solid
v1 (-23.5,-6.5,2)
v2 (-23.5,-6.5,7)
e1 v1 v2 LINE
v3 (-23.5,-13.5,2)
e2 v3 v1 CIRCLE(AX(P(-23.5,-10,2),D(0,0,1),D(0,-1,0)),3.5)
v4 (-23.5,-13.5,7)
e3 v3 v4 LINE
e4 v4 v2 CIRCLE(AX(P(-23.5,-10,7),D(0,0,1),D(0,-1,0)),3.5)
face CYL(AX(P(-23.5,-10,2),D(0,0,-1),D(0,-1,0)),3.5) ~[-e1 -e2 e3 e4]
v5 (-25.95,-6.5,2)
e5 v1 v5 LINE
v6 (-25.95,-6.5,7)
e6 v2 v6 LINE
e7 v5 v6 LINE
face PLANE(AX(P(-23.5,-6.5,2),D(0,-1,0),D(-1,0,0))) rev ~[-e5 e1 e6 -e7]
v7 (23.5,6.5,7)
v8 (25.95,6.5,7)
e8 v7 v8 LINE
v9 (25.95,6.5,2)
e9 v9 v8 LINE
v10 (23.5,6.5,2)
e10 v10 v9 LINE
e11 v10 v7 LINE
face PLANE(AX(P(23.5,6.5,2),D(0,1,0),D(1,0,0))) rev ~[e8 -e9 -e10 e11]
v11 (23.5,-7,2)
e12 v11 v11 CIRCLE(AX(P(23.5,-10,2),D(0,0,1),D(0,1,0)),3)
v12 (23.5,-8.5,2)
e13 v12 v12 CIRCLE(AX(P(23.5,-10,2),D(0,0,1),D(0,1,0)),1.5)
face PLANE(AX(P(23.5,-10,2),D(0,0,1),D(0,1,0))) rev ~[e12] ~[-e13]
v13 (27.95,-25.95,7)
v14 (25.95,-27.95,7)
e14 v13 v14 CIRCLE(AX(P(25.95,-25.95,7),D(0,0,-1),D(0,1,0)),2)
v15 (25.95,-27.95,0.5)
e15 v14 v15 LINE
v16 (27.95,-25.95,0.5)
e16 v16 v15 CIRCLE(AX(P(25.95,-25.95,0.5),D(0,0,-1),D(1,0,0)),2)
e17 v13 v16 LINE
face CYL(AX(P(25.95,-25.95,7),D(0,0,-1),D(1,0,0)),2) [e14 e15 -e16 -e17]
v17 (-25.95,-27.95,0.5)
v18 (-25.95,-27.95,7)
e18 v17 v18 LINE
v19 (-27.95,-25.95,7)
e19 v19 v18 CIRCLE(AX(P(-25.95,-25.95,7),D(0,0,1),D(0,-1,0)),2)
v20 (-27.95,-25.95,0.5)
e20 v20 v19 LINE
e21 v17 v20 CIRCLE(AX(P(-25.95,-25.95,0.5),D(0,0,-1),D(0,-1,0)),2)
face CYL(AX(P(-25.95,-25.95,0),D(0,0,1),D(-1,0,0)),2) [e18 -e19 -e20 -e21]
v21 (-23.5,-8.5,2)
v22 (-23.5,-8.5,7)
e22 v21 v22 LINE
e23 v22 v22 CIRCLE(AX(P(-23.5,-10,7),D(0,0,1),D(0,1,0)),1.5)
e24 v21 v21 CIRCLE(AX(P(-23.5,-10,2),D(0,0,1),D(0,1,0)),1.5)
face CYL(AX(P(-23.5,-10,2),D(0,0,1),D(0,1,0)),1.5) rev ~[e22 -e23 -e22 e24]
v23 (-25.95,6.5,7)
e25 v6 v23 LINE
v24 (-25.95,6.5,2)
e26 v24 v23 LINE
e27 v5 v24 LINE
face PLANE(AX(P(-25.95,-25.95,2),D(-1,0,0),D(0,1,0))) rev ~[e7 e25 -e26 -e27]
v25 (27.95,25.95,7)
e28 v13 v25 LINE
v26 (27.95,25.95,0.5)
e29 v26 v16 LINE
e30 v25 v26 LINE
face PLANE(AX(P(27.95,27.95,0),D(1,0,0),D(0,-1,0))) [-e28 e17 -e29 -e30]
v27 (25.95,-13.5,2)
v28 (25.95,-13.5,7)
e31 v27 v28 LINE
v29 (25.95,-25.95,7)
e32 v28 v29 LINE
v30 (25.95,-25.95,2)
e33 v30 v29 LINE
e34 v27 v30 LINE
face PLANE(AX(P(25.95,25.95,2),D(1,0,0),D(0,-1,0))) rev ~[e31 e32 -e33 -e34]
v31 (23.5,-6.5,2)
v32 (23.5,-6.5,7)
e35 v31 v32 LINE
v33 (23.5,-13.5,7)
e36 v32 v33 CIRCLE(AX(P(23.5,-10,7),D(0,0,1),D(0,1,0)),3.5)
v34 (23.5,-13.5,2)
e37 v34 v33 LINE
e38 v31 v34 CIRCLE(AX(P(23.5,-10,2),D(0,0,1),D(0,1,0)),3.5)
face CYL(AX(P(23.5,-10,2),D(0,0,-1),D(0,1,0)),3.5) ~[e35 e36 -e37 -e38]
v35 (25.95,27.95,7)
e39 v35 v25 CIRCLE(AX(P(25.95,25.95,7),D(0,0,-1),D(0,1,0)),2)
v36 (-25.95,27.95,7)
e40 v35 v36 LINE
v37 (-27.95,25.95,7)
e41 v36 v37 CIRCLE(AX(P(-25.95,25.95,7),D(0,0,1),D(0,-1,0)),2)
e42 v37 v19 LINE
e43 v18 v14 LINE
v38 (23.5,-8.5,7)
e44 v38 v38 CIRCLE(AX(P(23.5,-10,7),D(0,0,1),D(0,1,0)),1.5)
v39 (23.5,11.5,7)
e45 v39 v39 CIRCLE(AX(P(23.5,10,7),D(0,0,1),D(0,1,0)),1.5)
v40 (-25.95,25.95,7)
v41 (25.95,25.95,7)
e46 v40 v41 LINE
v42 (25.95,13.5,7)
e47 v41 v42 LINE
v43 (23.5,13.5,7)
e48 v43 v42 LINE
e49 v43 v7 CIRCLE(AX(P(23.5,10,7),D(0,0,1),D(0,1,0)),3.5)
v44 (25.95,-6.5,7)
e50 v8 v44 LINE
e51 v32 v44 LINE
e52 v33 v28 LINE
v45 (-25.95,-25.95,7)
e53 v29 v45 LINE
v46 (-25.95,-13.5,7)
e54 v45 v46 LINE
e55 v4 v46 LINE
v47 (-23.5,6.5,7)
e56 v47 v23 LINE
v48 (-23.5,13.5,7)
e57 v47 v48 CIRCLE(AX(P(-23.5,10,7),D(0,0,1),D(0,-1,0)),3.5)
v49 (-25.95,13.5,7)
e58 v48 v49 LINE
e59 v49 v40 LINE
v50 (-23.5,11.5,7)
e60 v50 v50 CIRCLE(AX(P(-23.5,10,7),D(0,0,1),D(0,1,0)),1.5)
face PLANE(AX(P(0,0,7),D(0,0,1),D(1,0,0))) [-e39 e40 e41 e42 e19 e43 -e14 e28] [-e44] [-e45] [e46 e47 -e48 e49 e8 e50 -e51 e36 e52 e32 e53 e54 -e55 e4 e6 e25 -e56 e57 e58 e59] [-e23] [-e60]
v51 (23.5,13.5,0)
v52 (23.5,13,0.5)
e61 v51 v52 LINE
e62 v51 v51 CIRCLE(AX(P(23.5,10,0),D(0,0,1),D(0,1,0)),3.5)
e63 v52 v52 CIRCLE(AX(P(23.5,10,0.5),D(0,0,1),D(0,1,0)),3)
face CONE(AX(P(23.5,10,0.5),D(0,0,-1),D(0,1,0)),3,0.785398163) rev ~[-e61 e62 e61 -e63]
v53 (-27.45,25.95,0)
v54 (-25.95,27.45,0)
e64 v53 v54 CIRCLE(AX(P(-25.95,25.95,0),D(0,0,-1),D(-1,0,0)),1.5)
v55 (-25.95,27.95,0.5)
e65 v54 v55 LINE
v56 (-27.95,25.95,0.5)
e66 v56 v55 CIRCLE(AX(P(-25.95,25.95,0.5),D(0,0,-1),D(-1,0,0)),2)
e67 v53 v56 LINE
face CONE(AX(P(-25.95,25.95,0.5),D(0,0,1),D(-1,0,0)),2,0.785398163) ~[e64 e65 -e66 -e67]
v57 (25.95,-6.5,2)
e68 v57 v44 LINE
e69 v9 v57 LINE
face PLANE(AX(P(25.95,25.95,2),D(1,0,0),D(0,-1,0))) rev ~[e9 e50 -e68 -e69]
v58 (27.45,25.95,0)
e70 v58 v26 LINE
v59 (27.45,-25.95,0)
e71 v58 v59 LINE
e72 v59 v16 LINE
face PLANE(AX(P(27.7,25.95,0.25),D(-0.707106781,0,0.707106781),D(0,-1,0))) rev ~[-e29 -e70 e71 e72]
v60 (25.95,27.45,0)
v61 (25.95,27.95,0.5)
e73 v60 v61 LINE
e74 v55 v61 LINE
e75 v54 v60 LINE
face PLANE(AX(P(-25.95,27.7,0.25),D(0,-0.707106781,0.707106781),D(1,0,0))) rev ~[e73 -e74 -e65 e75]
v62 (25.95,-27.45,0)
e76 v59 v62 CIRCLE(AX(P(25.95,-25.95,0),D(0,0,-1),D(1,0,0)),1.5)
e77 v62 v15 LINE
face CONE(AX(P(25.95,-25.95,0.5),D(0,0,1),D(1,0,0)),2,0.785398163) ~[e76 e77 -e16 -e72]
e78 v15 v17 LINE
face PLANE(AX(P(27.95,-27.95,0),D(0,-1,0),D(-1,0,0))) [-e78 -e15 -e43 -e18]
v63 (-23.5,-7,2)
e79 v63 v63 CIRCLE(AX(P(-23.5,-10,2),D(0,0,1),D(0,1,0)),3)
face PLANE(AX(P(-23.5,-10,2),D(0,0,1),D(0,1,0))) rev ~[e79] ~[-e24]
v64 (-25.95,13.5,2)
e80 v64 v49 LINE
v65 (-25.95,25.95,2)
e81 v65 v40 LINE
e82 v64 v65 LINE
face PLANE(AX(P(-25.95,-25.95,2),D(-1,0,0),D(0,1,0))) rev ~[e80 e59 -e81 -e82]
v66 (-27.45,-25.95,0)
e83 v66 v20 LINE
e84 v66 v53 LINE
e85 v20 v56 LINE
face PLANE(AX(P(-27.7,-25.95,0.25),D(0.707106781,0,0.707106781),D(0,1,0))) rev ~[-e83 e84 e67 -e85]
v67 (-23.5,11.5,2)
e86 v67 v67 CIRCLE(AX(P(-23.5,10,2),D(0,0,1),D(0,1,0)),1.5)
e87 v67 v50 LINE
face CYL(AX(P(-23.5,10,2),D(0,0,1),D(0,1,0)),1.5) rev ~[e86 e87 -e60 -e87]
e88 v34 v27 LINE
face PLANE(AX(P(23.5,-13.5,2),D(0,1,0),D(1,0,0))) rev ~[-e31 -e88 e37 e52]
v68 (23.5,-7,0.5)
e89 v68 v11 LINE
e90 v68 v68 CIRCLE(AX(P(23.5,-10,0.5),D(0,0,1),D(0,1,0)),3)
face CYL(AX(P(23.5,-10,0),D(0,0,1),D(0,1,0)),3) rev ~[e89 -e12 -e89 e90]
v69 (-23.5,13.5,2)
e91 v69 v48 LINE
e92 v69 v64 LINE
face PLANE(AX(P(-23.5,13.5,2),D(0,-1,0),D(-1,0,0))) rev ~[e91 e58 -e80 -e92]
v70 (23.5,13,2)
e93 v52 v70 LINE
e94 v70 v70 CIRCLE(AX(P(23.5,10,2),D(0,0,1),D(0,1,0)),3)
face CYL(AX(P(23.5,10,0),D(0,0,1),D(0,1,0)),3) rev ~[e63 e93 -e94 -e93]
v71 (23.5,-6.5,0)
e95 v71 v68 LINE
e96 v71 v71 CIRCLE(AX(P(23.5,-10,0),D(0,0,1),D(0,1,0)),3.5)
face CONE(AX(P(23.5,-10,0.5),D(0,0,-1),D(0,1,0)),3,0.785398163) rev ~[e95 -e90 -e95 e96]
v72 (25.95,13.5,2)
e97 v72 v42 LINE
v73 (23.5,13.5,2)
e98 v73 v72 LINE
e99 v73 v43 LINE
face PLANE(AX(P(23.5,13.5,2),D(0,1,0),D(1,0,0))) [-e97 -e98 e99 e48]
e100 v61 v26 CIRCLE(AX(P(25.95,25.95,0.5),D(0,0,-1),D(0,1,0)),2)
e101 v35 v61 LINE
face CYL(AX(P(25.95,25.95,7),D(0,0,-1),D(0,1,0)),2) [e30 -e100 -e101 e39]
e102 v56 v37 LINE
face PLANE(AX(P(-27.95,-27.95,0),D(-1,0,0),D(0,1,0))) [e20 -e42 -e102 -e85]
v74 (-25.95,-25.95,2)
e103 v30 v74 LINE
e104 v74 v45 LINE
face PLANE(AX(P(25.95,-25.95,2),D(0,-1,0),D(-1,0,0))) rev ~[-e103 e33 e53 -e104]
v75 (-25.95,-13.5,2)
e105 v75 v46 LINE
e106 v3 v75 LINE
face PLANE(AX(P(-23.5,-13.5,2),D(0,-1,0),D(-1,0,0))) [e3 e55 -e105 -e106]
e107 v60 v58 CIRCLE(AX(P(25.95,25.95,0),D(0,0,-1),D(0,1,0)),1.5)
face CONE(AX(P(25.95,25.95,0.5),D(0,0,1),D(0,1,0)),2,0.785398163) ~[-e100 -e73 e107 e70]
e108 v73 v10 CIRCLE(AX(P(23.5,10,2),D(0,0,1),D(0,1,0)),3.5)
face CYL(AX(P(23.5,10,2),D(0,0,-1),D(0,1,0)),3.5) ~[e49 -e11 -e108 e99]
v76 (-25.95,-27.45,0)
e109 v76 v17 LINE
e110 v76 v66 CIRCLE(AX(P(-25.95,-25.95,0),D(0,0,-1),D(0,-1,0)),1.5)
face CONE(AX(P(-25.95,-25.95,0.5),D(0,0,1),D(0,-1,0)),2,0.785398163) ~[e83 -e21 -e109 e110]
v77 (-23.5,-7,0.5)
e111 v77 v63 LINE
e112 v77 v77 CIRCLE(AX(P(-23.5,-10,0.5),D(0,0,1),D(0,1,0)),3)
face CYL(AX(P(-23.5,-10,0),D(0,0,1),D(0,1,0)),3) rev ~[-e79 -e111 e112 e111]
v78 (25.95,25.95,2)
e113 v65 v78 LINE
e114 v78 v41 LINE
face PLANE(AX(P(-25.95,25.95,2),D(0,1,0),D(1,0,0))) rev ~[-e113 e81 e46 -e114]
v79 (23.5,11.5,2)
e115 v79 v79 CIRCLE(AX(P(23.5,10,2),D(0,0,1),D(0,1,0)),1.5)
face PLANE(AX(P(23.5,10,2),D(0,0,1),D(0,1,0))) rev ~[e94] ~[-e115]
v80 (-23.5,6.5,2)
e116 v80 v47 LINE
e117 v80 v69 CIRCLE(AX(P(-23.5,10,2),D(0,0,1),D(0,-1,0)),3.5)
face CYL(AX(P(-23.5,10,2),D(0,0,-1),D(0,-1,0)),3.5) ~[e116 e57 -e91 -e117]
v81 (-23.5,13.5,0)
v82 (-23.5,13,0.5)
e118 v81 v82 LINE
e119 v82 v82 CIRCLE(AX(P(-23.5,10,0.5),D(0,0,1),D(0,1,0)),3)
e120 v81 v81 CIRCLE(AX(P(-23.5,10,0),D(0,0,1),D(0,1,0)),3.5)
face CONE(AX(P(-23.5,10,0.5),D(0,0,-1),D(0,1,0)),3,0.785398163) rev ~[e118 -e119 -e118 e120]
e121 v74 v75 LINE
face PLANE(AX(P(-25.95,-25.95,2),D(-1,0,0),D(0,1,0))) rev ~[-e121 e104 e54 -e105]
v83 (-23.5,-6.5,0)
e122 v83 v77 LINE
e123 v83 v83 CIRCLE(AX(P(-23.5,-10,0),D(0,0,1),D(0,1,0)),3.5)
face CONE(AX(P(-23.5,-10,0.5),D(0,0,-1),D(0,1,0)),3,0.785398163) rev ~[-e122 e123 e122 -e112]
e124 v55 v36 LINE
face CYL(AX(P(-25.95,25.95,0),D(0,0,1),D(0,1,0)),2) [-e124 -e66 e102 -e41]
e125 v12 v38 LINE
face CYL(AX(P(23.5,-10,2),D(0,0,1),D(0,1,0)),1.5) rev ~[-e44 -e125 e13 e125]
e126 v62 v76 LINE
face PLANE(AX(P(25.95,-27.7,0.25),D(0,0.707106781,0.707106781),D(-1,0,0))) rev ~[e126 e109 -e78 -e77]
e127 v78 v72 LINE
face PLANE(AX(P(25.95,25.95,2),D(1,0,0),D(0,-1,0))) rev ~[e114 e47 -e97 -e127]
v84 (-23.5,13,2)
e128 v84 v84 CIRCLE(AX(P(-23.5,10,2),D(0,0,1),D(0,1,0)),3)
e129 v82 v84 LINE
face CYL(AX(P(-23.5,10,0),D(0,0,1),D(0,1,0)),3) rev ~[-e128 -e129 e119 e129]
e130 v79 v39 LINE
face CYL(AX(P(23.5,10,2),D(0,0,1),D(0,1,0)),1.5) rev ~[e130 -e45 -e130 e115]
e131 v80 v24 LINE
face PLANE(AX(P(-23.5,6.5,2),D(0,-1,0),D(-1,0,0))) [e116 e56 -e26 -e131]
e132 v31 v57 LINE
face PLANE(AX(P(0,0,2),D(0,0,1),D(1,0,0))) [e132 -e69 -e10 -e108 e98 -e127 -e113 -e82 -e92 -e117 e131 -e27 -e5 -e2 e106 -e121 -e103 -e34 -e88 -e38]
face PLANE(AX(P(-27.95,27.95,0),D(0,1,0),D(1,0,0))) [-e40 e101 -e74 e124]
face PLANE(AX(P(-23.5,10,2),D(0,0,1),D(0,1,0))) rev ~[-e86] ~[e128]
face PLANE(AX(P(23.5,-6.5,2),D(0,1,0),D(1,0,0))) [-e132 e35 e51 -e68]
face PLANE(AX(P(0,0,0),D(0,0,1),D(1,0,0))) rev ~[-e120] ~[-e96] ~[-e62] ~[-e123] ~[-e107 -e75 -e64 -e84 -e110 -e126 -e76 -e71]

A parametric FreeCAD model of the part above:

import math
import FreeCAD as App
import Part
import Sketcher
from FreeCAD import Vector
Q = App.Units.Quantity


def edges_at(feature, points):
    """Names of the edges that pass closest to the given points."""
    edges = feature.Shape.Edges
    near = lambda p: min(range(len(edges)), key=lambda i: edges[i].distToShape(Part.Vertex(*p))[0])
    return sorted({f"Edge{near(p) + 1}" for p in points})

doc = App.newDocument("Part")
body = doc.addObject("PartDesign::Body", "Body")

# Sketch on XY plane
sketch1 = body.newObject("Sketcher::SketchObject", "Sketch")
sketch1.AttachmentSupport = (doc.getObject("XY_Plane"), [""])
sketch1.MapMode = "FlatFace"
sketch1.addGeometry(Part.LineSegment(Vector(28, 28, 0), Vector(-28, 28, 0)), False)
sketch1.addGeometry(Part.LineSegment(Vector(-28, 28, 0), Vector(-28, -28, 0)), False)
sketch1.addGeometry(Part.LineSegment(Vector(-28, -28, 0), Vector(28, -28, 0)), False)
sketch1.addGeometry(Part.LineSegment(Vector(28, -28, 0), Vector(28, 28, 0)), False)
sketch1.addConstraint(Sketcher.Constraint("Coincident", 0, 2, 1, 1))
sketch1.addConstraint(Sketcher.Constraint("Coincident", 1, 2, 2, 1))
sketch1.addConstraint(Sketcher.Constraint("Coincident", 2, 2, 3, 1))
sketch1.addConstraint(Sketcher.Constraint("Coincident", 3, 2, 0, 1))
sketch1.addConstraint(Sketcher.Constraint("Horizontal", 0))
sketch1.addConstraint(Sketcher.Constraint("Vertical", 1))
sketch1.addConstraint(Sketcher.Constraint("Horizontal", 2))
sketch1.addConstraint(Sketcher.Constraint("Vertical", 3))
sketch1.addConstraint(Sketcher.Constraint("Symmetric", 0, 2, 2, 2, -1, 1))
sketch1.addConstraint(Sketcher.Constraint("Equal", 2, 1))
sketch1.addConstraint(Sketcher.Constraint("DistanceX", 0, 2, 0, 1, Q("55.9 mm")))
pad1 = body.newObject("PartDesign::Pad", "Pad")
pad1.Profile = sketch1
pad1.Length = 2

# Sketch on XY plane
sketch2 = body.newObject("Sketcher::SketchObject", "Sketch001")
sketch2.AttachmentSupport = (doc.getObject("XY_Plane"), [""])
sketch2.MapMode = "FlatFace"
sketch2.AttachmentOffset = App.Placement(Vector(0, 0, 2), App.Rotation())
sketch2.addGeometry(Part.LineSegment(Vector(-28, 28, 0), Vector(-28, -28, 0)), False)
sketch2.addGeometry(Part.LineSegment(Vector(-28, -28, 0), Vector(28, -28, 0)), False)
sketch2.addGeometry(Part.LineSegment(Vector(28, -28, 0), Vector(28, 28, 0)), False)
sketch2.addGeometry(Part.LineSegment(Vector(28, 28, 0), Vector(-28, 28, 0)), False)
sketch2.addGeometry(Part.LineSegment(Vector(-26, -26, 0), Vector(-26, 26, 0)), False)
sketch2.addGeometry(Part.LineSegment(Vector(-26, 26, 0), Vector(26, 26, 0)), False)
sketch2.addGeometry(Part.LineSegment(Vector(26, 26, 0), Vector(26, -26, 0)), False)
sketch2.addGeometry(Part.LineSegment(Vector(26, -26, 0), Vector(-26, -26, 0)), False)
sketch2.addConstraint(Sketcher.Constraint("Coincident", 0, 2, 1, 1))
sketch2.addConstraint(Sketcher.Constraint("Coincident", 1, 2, 2, 1))
sketch2.addConstraint(Sketcher.Constraint("Coincident", 2, 2, 3, 1))
sketch2.addConstraint(Sketcher.Constraint("Coincident", 3, 2, 0, 1))
sketch2.addConstraint(Sketcher.Constraint("Coincident", 4, 2, 5, 1))
sketch2.addConstraint(Sketcher.Constraint("Coincident", 5, 2, 6, 1))
sketch2.addConstraint(Sketcher.Constraint("Coincident", 6, 2, 7, 1))
sketch2.addConstraint(Sketcher.Constraint("Coincident", 7, 2, 4, 1))
sketch2.addConstraint(Sketcher.Constraint("Vertical", 0))
sketch2.addConstraint(Sketcher.Constraint("Horizontal", 1))
sketch2.addConstraint(Sketcher.Constraint("Vertical", 2))
sketch2.addConstraint(Sketcher.Constraint("Horizontal", 3))
sketch2.addConstraint(Sketcher.Constraint("Vertical", 4))
sketch2.addConstraint(Sketcher.Constraint("Horizontal", 5))
sketch2.addConstraint(Sketcher.Constraint("Vertical", 6))
sketch2.addConstraint(Sketcher.Constraint("Horizontal", 7))
sketch2.addConstraint(Sketcher.Constraint("Symmetric", 0, 2, 2, 2, -1, 1))
sketch2.addConstraint(Sketcher.Constraint("Symmetric", 4, 2, 6, 2, -1, 1))
sketch2.addConstraint(Sketcher.Constraint("Equal", 3, 0))
sketch2.addConstraint(Sketcher.Constraint("Equal", 7, 4))
sketch2.addConstraint(Sketcher.Constraint("DistanceX", 3, 2, 4, 2, Q("2 mm")))
sketch2.addConstraint(Sketcher.Constraint("DistanceX", 1, 1, 1, 2, Q("55.9 mm")))
pad2 = body.newObject("PartDesign::Pad", "Pad001")
pad2.Profile = sketch2
pad2.Length = 5
doc.recompute()

fillet = body.newObject("PartDesign::Fillet", "Fillet")
fillet.Base = (pad2, edges_at(pad2, [
    (-27.95, -27.95, 3.5),
    (27.95, -27.95, 3.5),
    (27.95, 27.95, 3.5),
    (-27.95, 27.95, 3.5),
]))
fillet.Radius = 2

# Sketch on XY plane
sketch3 = body.newObject("Sketcher::SketchObject", "Sketch002")
sketch3.AttachmentSupport = (doc.getObject("XY_Plane"), [""])
sketch3.MapMode = "FlatFace"
sketch3.AttachmentOffset = App.Placement(Vector(0, 0, 2), App.Rotation())
sketch3.addGeometry(Part.LineSegment(Vector(-25.9, -13.5, 0), Vector(-23.5, -13.5, 0)), False)
sketch3.addGeometry(Part.ArcOfCircle(Part.Circle(Vector(-23.5, -10, 0), Vector(0, 0, 1), 3.5), math.radians(-90), math.radians(90)), False)
sketch3.addGeometry(Part.LineSegment(Vector(-23.5, -6.5, 0), Vector(-25.9, -6.5, 0)), False)
sketch3.addGeometry(Part.LineSegment(Vector(-25.9, -6.5, 0), Vector(-25.9, -13.5, 0)), False)
sketch3.addGeometry(Part.LineSegment(Vector(-25.9, 13.5, 0), Vector(-25.9, 6.5, 0)), False)
sketch3.addGeometry(Part.LineSegment(Vector(-25.9, 6.5, 0), Vector(-23.5, 6.5, 0)), False)
sketch3.addGeometry(Part.ArcOfCircle(Part.Circle(Vector(-23.5, 10, 0), Vector(0, 0, 1), 3.5), math.radians(-90), math.radians(90)), False)
sketch3.addGeometry(Part.LineSegment(Vector(-23.5, 13.5, 0), Vector(-25.9, 13.5, 0)), False)
sketch3.addGeometry(Part.LineSegment(Vector(23.5, -13.5, 0), Vector(25.9, -13.5, 0)), False)
sketch3.addGeometry(Part.LineSegment(Vector(25.9, -13.5, 0), Vector(25.9, -6.5, 0)), False)
sketch3.addGeometry(Part.LineSegment(Vector(25.9, -6.5, 0), Vector(23.5, -6.5, 0)), False)
sketch3.addGeometry(Part.ArcOfCircle(Part.Circle(Vector(23.5, -10, 0), Vector(0, 0, 1), 3.5), math.radians(90), math.radians(270)), False)
sketch3.addGeometry(Part.LineSegment(Vector(23.5, 6.5, 0), Vector(25.9, 6.5, 0)), False)
sketch3.addGeometry(Part.LineSegment(Vector(25.9, 6.5, 0), Vector(25.9, 13.5, 0)), False)
sketch3.addGeometry(Part.LineSegment(Vector(25.9, 13.5, 0), Vector(23.5, 13.5, 0)), False)
sketch3.addGeometry(Part.ArcOfCircle(Part.Circle(Vector(23.5, 10, 0), Vector(0, 0, 1), 3.5), math.radians(90), math.radians(270)), False)
sketch3.addConstraint(Sketcher.Constraint("Tangent", 0, 2, 1, 1))
sketch3.addConstraint(Sketcher.Constraint("Tangent", 1, 2, 2, 1))
sketch3.addConstraint(Sketcher.Constraint("Coincident", 2, 2, 3, 1))
sketch3.addConstraint(Sketcher.Constraint("Coincident", 3, 2, 0, 1))
sketch3.addConstraint(Sketcher.Constraint("Coincident", 4, 2, 5, 1))
sketch3.addConstraint(Sketcher.Constraint("Tangent", 5, 2, 6, 1))
sketch3.addConstraint(Sketcher.Constraint("Tangent", 6, 2, 7, 1))
sketch3.addConstraint(Sketcher.Constraint("Coincident", 7, 2, 4, 1))
sketch3.addConstraint(Sketcher.Constraint("Coincident", 8, 2, 9, 1))
sketch3.addConstraint(Sketcher.Constraint("Coincident", 9, 2, 10, 1))
sketch3.addConstraint(Sketcher.Constraint("Tangent", 10, 2, 11, 1))
sketch3.addConstraint(Sketcher.Constraint("Tangent", 11, 2, 8, 1))
sketch3.addConstraint(Sketcher.Constraint("Coincident", 12, 2, 13, 1))
sketch3.addConstraint(Sketcher.Constraint("Coincident", 13, 2, 14, 1))
sketch3.addConstraint(Sketcher.Constraint("Tangent", 14, 2, 15, 1))
sketch3.addConstraint(Sketcher.Constraint("Tangent", 15, 2, 12, 1))
sketch3.addConstraint(Sketcher.Constraint("Horizontal", 0))
sketch3.addConstraint(Sketcher.Constraint("Horizontal", 2))
sketch3.addConstraint(Sketcher.Constraint("Vertical", 3))
sketch3.addConstraint(Sketcher.Constraint("Vertical", 4))
sketch3.addConstraint(Sketcher.Constraint("Horizontal", 5))
sketch3.addConstraint(Sketcher.Constraint("Horizontal", 7))
sketch3.addConstraint(Sketcher.Constraint("Horizontal", 8))
sketch3.addConstraint(Sketcher.Constraint("Vertical", 9))
sketch3.addConstraint(Sketcher.Constraint("Horizontal", 10))
sketch3.addConstraint(Sketcher.Constraint("Horizontal", 12))
sketch3.addConstraint(Sketcher.Constraint("Vertical", 13))
sketch3.addConstraint(Sketcher.Constraint("Horizontal", 14))
sketch3.addConstraint(Sketcher.Constraint("Equal", 1, 6))
sketch3.addConstraint(Sketcher.Constraint("Equal", 6, 11))
sketch3.addConstraint(Sketcher.Constraint("Equal", 11, 15))
sketch3.addConstraint(Sketcher.Constraint("Symmetric", 6, 3, 11, 3, -1, 1))
sketch3.addConstraint(Sketcher.Constraint("Symmetric", 1, 3, 15, 3, -1, 1))
sketch3.addConstraint(Sketcher.Constraint("Symmetric", 1, 3, 11, 3, -2))
sketch3.addConstraint(Sketcher.Constraint("Vertical", 3, 2, 4, 2))
sketch3.addConstraint(Sketcher.Constraint("Vertical", 9, 2, 12, 2))
sketch3.addConstraint(Sketcher.Constraint("Equal", 7, 8))
sketch3.addConstraint(Sketcher.Constraint("Radius", 1, Q("3.5 mm")))
sketch3.addConstraint(Sketcher.Constraint("DistanceY", 1, 3, 6, 3, Q("20 mm")))
sketch3.addConstraint(Sketcher.Constraint("DistanceX", 1, 3, 11, 3, Q("47 mm")))
sketch3.addConstraint(Sketcher.Constraint("DistanceX", 0, 1, 0, 2, Q("2.45 mm")))
pad3 = body.newObject("PartDesign::Pad", "Pad002")
pad3.Profile = sketch3
pad3.Length = 5

# Sketch on XY plane
sketch4 = body.newObject("Sketcher::SketchObject", "Sketch003")
sketch4.AttachmentSupport = (doc.getObject("XY_Plane"), [""])
sketch4.MapMode = "FlatFace"
sketch4.addGeometry(Part.Circle(Vector(23.5, -10, 0), Vector(0, 0, 1), 1.5), False)
sketch4.addGeometry(Part.Circle(Vector(23.5, 10, 0), Vector(0, 0, 1), 1.5), False)
sketch4.addGeometry(Part.Circle(Vector(-23.5, 10, 0), Vector(0, 0, 1), 1.5), False)
sketch4.addGeometry(Part.Circle(Vector(-23.5, -10, 0), Vector(0, 0, 1), 1.5), False)
sketch4.addConstraint(Sketcher.Constraint("Equal", 0, 1))
sketch4.addConstraint(Sketcher.Constraint("Equal", 1, 2))
sketch4.addConstraint(Sketcher.Constraint("Equal", 2, 3))
sketch4.addConstraint(Sketcher.Constraint("Symmetric", 0, 3, 2, 3, -1, 1))
sketch4.addConstraint(Sketcher.Constraint("Symmetric", 1, 3, 3, 3, -1, 1))
sketch4.addConstraint(Sketcher.Constraint("Symmetric", 1, 3, 2, 3, -2))
sketch4.addConstraint(Sketcher.Constraint("Diameter", 0, Q("3 mm")))
sketch4.addConstraint(Sketcher.Constraint("DistanceY", 0, 3, -1, 1, Q("10 mm")))
sketch4.addConstraint(Sketcher.Constraint("DistanceX", 2, 3, 1, 3, Q("47 mm")))
doc.recompute()
hole = body.newObject("PartDesign::Hole", "Hole")
hole.Profile = sketch4
hole.ThreadType = "None"
hole.Diameter = 3
hole.DepthType = "ThroughAll"
hole.HoleCutType = "Counterbore"
hole.HoleCutDiameter = 6
hole.HoleCutDepth = 2
hole.Reversed = True
doc.recompute()

chamfer = body.newObject("PartDesign::Chamfer", "Chamfer")
chamfer.Base = (hole, edges_at(hole, [
    (0, -27.95, 0),
    (27.364, -27.364, 0),
    (27.95, 0, 0),
    (27.364, 27.364, 0),
    (0, 27.95, 0),
    (-27.364, 27.364, 0),
    (-27.95, 0, 0),
    (-27.364, -27.364, 0),
    (-23.5, -13, 0),
    (23.5, -13, 0),
    (-23.5, 7, 0),
    (23.5, 7, 0),
]))
chamfer.Size = 0.5

doc.recompute()
